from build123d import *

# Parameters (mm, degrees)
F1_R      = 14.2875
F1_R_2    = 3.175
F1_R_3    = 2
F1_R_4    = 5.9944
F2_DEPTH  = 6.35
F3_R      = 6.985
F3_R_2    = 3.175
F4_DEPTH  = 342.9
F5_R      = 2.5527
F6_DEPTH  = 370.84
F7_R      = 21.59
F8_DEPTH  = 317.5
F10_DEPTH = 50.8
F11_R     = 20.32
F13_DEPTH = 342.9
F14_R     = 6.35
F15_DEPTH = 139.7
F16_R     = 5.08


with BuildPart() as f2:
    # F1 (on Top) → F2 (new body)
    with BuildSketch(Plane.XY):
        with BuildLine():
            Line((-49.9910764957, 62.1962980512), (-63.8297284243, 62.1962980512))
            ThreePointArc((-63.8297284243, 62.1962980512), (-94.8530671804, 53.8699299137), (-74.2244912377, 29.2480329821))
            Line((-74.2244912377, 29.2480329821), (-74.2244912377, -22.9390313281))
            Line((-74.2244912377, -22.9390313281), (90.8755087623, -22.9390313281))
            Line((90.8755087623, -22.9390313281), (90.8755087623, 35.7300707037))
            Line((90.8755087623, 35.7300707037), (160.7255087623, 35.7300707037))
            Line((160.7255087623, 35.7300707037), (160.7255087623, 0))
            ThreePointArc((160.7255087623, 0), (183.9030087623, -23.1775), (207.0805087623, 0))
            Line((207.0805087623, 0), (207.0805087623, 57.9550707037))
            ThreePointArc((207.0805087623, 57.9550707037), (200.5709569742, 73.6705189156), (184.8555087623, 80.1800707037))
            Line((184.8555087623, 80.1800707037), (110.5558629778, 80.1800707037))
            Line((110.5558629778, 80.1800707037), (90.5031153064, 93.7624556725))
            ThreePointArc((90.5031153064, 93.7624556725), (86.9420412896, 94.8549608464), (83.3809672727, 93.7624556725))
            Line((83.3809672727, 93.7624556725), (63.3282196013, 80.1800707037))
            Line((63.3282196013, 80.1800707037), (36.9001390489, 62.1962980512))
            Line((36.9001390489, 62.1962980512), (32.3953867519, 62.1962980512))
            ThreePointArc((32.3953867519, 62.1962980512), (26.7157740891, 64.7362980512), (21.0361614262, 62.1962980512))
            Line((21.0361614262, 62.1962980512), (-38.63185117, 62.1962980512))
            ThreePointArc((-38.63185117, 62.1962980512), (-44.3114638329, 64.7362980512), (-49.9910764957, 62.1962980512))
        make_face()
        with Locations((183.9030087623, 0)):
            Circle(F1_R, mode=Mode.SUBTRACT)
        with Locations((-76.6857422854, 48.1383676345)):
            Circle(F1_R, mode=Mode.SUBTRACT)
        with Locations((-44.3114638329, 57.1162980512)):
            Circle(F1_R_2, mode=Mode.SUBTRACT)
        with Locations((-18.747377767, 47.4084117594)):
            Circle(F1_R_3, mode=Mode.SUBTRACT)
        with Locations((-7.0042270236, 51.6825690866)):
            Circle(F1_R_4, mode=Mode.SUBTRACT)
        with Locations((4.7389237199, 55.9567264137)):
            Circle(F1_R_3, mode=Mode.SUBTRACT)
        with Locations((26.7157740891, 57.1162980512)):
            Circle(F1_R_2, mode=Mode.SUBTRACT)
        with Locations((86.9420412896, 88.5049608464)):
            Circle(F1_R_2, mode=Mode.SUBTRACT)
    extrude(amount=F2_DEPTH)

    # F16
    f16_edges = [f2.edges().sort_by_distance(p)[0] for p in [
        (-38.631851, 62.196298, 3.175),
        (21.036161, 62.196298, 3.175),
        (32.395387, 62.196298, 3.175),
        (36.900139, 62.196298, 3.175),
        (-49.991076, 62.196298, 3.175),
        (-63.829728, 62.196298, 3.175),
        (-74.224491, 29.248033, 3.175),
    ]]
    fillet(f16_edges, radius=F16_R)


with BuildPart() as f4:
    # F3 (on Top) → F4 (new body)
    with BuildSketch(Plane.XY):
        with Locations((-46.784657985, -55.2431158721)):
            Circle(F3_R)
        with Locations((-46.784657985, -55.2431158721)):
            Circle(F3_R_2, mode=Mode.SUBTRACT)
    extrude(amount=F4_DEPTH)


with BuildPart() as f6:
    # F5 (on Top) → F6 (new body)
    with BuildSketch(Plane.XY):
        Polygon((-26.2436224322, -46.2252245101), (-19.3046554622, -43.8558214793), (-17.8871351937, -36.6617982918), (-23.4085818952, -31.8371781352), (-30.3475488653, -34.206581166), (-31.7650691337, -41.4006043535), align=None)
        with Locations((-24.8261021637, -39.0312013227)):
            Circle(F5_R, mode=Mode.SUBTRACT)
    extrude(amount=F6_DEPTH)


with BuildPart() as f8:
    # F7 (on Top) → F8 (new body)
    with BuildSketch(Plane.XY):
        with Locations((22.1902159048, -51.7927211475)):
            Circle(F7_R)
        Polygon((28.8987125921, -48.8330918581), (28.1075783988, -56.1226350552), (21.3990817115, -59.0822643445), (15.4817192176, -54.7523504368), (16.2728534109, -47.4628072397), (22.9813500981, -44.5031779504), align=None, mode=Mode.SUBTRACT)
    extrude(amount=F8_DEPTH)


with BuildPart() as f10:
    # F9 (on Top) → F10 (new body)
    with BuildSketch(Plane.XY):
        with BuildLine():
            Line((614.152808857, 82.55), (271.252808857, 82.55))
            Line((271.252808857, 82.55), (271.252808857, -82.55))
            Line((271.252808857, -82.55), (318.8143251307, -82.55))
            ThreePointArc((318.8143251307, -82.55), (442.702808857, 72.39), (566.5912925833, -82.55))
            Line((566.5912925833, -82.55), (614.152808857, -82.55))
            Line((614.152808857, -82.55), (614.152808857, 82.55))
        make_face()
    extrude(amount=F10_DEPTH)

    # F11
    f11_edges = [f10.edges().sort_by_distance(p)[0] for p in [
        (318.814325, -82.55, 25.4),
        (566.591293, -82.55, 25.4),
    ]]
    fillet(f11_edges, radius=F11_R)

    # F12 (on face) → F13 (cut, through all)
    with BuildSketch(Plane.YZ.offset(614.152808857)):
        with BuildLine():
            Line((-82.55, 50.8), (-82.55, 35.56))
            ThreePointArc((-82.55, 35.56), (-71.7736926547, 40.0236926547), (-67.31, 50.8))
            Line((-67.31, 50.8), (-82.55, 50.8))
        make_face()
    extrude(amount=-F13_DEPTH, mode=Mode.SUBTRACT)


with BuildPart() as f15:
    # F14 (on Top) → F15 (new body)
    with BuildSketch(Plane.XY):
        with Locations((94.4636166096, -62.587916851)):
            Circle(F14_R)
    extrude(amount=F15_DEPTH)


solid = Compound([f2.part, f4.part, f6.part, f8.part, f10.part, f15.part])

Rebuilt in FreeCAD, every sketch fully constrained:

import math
import FreeCAD as App
import Part
import Sketcher

V = App.Vector
Q = App.Units.Quantity


def edges_at(feature, points):
    """Names of the edges that pass closest to the given points."""
    edges = feature.Shape.Edges
    near = lambda p: min(range(len(edges)), key=lambda i: edges[i].distToShape(Part.Vertex(*p))[0])
    return sorted({f"Edge{near(p) + 1}" for p in points})


def add_polygon(sketch, points):
    """Adds a closed chain of lines whose ends are joined by coincident constraints."""
    first, n = sketch.GeometryCount, len(points)
    for a, b in zip(points, points[1:] + points[:1]):
        sketch.addGeometry(Part.LineSegment(App.Vector(*a, 0), App.Vector(*b, 0)), False)
    for i in range(n):
        sketch.addConstraint(Sketcher.Constraint("Coincident", first + i, 2, first + (i + 1) % n, 1))

doc = App.newDocument("Part")
params = doc.addObject("Spreadsheet::Sheet", "Params")
for row, (alias, value) in enumerate([
    ("sketch1_radius", "0.3 in"),
    ("sketch1_diameter", "0.25 in"),
    ("sketch1_radius2", "0.75 in"),
    ("sketch1_radius3", "0.25 in"),
    ("sketch1_diameter2", "1.125 in"),
    ("pad1_length", "0.25 in"),
    ("fillet_radius", "0.2 in"),
    ("sketch2_diameter", "0.55 in"),
    ("sketch2_diameter2", "0.25 in"),
    ("pad2_length", "13.5 in"),
    ("sketch3_diameter", "0.201 in"),
    ("pad3_length", "14.6 in"),
    ("sketch4_diameter", "1.7 in"),
    ("pad4_length", "12.5 in"),
    ("sketch5_radius", "5 in"),
    ("sketch5_width", "13.5 in"),
    ("sketch5_height", "6.5 in"),
    ("pad5_length", "2 in"),
    ("fillet2_radius", "0.8 in"),
    ("sketch6_radius", "0.6 in"),
    ("sketch7_diameter", "0.5 in"),
    ("pad6_length", "5.5 in"),
], start=1):
    params.set(f"A{row}", alias)
    params.set(f"B{row}", "=" + value)
    params.setAlias(f"B{row}", alias)

body = doc.addObject("PartDesign::Body", "Body")

# Sketch on XY plane
sketch1 = doc.addObject("Sketcher::SketchObject", "Sketch")
body.addObject(sketch1)
sketch1.AttachmentSupport = (doc.XY_Plane, [""])
sketch1.MapMode = "FlatFace"
sketch1.addGeometry([
    Part.LineSegment(V(-49.991076, 62.196298, 0), V(-63.829728, 62.196298, 0)),  # 0
    Part.ArcOfCircle(Part.Circle(V(-76.685742, 48.138368, 0), V(0, 0, 1), 19.05), math.radians(47.557002), math.radians(277.423339)),  # 1
    Part.LineSegment(V(-74.224491, 29.248033, 0), V(-74.224491, -22.939031, 0)),  # 2
    Part.LineSegment(V(-74.224491, -22.939031, 0), V(90.875509, -22.939031, 0)),  # 3
    Part.LineSegment(V(90.875509, -22.939031, 0), V(90.875509, 35.730071, 0)),  # 4
    Part.LineSegment(V(90.875509, 35.730071, 0), V(160.725509, 35.730071, 0)),  # 5
    Part.LineSegment(V(160.725509, 35.730071, 0), V(160.725509, 0, 0)),  # 6
    Part.ArcOfCircle(Part.Circle(V(183.903009, 0, 0), V(0, 0, 1), 23.1775), math.radians(180), math.radians(360)),  # 7
    Part.LineSegment(V(207.080509, 0, 0), V(207.080509, 57.955071, 0)),  # 8
    Part.ArcOfCircle(Part.Circle(V(184.855509, 57.955071, 0), V(0, 0, 1), 22.225), math.radians(0), math.radians(90)),  # 9
    Part.LineSegment(V(184.855509, 80.180071, 0), V(110.555863, 80.180071, 0)),  # 10
    Part.LineSegment(V(110.555863, 80.180071, 0), V(90.503115, 93.762456, 0)),  # 11
    Part.ArcOfCircle(Part.Circle(V(86.942041, 88.504961, 0), V(0, 0, 1), 6.35), math.radians(55.888924), math.radians(124.111076)),  # 12
    Part.LineSegment(V(83.380967, 93.762456, 0), V(63.32822, 80.180071, 0)),  # 13
    Part.LineSegment(V(63.32822, 80.180071, 0), V(36.900139, 62.196298, 0)),  # 14
    Part.LineSegment(V(36.900139, 62.196298, 0), V(32.395387, 62.196298, 0)),  # 15
    Part.ArcOfCircle(Part.Circle(V(26.715774, 57.116298, 0), V(0, 0, 1), 7.62), math.radians(41.810315), math.radians(138.189685)),  # 16
    Part.LineSegment(V(21.036161, 62.196298, 0), V(-38.631851, 62.196298, 0)),  # 17
    Part.ArcOfCircle(Part.Circle(V(-44.311464, 57.116298, 0), V(0, 0, 1), 7.62), math.radians(41.810315), math.radians(138.189685)),  # 18
    Part.Circle(V(183.903009, 0, 0), V(0, 0, 1), 14.2875),  # 19
    Part.Circle(V(-76.685742, 48.138368, 0), V(0, 0, 1), 14.2875),  # 20
    Part.Circle(V(-18.747378, 47.408412, 0), V(0, 0, 1), 2),  # 21
    Part.Circle(V(-44.311464, 57.116298, 0), V(0, 0, 1), 3.175),  # 22
    Part.Circle(V(-7.004227, 51.682569, 0), V(0, 0, 1), 5.9944),  # 23
    Part.Circle(V(4.738924, 55.956726, 0), V(0, 0, 1), 2),  # 24
    Part.Circle(V(26.715774, 57.116298, 0), V(0, 0, 1), 3.175),  # 25
    Part.Circle(V(86.942041, 88.504961, 0), V(0, 0, 1), 3.175),  # 26
], False)
sketch1.addConstraint([
    Sketcher.Constraint("Coincident", 0, 2, 1, 1),
    Sketcher.Constraint("Coincident", 1, 2, 2, 1),
    Sketcher.Constraint("Coincident", 2, 2, 3, 1),
    Sketcher.Constraint("Coincident", 3, 2, 4, 1),
    Sketcher.Constraint("Coincident", 4, 2, 5, 1),
    Sketcher.Constraint("Coincident", 5, 2, 6, 1),
    Sketcher.Constraint("Tangent", 6, 2, 7, 1),
    Sketcher.Constraint("Tangent", 7, 2, 8, 1),
    Sketcher.Constraint("Tangent", 8, 2, 9, 1),
    Sketcher.Constraint("Tangent", 9, 2, 10, 1),
    Sketcher.Constraint("Coincident", 10, 2, 11, 1),
    Sketcher.Constraint("Tangent", 11, 2, 12, 1),
    Sketcher.Constraint("Tangent", 12, 2, 13, 1),
    Sketcher.Constraint("Coincident", 13, 2, 14, 1),
    Sketcher.Constraint("Coincident", 14, 2, 15, 1),
    Sketcher.Constraint("Coincident", 15, 2, 16, 1),
    Sketcher.Constraint("Coincident", 16, 2, 17, 1),
    Sketcher.Constraint("Coincident", 17, 2, 18, 1),
    Sketcher.Constraint("Coincident", 18, 2, 0, 1),
    Sketcher.Constraint("Horizontal", 0),
    Sketcher.Constraint("Vertical", 2),
    Sketcher.Constraint("Horizontal", 3),
    Sketcher.Constraint("Vertical", 4),
    Sketcher.Constraint("Horizontal", 5),
    Sketcher.Constraint("Vertical", 6),
    Sketcher.Constraint("Vertical", 8),
    Sketcher.Constraint("Horizontal", 10),
    Sketcher.Constraint("Horizontal", 15),
    Sketcher.Constraint("Horizontal", 17),
    Sketcher.Constraint("Coincident", 19, 3, 7, 3),
    Sketcher.Constraint("Coincident", 20, 3, 1, 3),
    Sketcher.Constraint("Coincident", 22, 3, 18, 3),
    Sketcher.Constraint("Coincident", 25, 3, 16, 3),
    Sketcher.Constraint("Coincident", 26, 3, 12, 3),
    Sketcher.Constraint("Equal", 16, 18),
    Sketcher.Constraint("Equal", 19, 20),
    Sketcher.Constraint("Equal", 21, 24),
    Sketcher.Constraint("Equal", 22, 25),
    Sketcher.Constraint("Equal", 25, 26),
    Sketcher.Constraint("PointOnObject", 7, 3, -1),
    Sketcher.Constraint("Horizontal", 16, 3, 18, 3),
    Sketcher.Constraint("Horizontal", 11, 2, 12, 2),
    Sketcher.Constraint("Horizontal", 10, 2, 13, 2),
    Sketcher.Constraint("Horizontal", 0, 2, 14, 2),
    Sketcher.Constraint("Horizontal", 15, 2, 16, 2),
    Sketcher.Constraint("Radius", 16, Q("0.3 in")),
    Sketcher.Constraint("Diameter", 22, Q("0.25 in")),
    Sketcher.Constraint("Radius", 1, Q("0.75 in")),
    Sketcher.Constraint("Radius", 12, Q("0.25 in")),
    Sketcher.Constraint("Diameter", 19, Q("1.125 in")),
    Sketcher.Constraint("Diameter", 23, Q("0.472 in")),
    Sketcher.Constraint("DistanceX", 3, 1, 3, 2, Q("6.5 in")),
    Sketcher.Constraint("Radius", 9, Q("0.875 in")),
    Sketcher.Constraint("DistanceX", 5, 1, 5, 2, Q("2.75 in")),
    Sketcher.Constraint("Radius", 7, Q("0.9125 in")),
    Sketcher.Constraint("DistanceY", 18, 3, 0, 2, Q("0.2 in")),
    Sketcher.Constraint("Diameter", 21, 4.0),
    Sketcher.Constraint("DistanceY", 5, 2, 9, 2, Q("1.75 in")),
    Sketcher.Constraint("Distance", 11, 24.2197),
    Sketcher.Constraint("DistanceX", 0, 2, 0, 1, 13.838652),
    Sketcher.Constraint("DistanceY", 6, 2, 6, 1, 35.730071),
    Sketcher.Constraint("DistanceY", -1, 1, 16, 3, 57.116298),
    Sketcher.Constraint("DistanceX", 23, 3, 16, 3, 33.720001),
    Sketcher.Constraint("DistanceY", 1, 3, 23, 3, 3.544201),
    Sketcher.Constraint("DistanceX", 21, 3, 24, 3, 23.486301),
    Sketcher.Constraint("DistanceY", 2, 2, 1, 3, 71.077399),
    Sketcher.Constraint("DistanceX", 10, 2, 10, 1, 74.299646),
    Sketcher.Constraint("DistanceX", 15, 2, 15, 1, 4.504752),
    Sketcher.Constraint("DistanceX", 17, 2, 17, 1, 59.668013),
    Sketcher.Constraint("DistanceY", 2, 2, 2, 1, 52.187064),
    Sketcher.Constraint("DistanceY", 4, 1, 4, 2, 58.669102),
    Sketcher.Constraint("DistanceX", -1, 1, 7, 3, 183.903009),
    Sketcher.Constraint("DistanceX", -1, 1, 12, 3, 86.942041),
    Sketcher.Constraint("DistanceY", -1, 1, 21, 3, 47.408412),
    Sketcher.Constraint("DistanceX", 21, 3, 16, 3, 45.463152),
    Sketcher.Constraint("DistanceY", 24, 3, 16, 3, 1.159572),
])
sketch1.setExpression("Constraints[45]", "Params.sketch1_radius")
sketch1.setExpression("Constraints[46]", "Params.sketch1_diameter")
sketch1.setExpression("Constraints[47]", "Params.sketch1_radius2")
sketch1.setExpression("Constraints[48]", "Params.sketch1_radius3")
sketch1.setExpression("Constraints[49]", "Params.sketch1_diameter2")
pad1 = doc.addObject("PartDesign::Pad", "Pad")
body.addObject(pad1)
pad1.Profile = sketch1
pad1.setExpression("Length", "Params.pad1_length")
doc.recompute()

fillet = doc.addObject("PartDesign::Fillet", "Fillet")
body.addObject(fillet)
fillet.Base = (pad1, edges_at(pad1, [
    (-38.632, 62.196, 3.175),
    (21.036, 62.196, 3.175),
    (32.395, 62.196, 3.175),
    (36.9, 62.196, 3.175),
    (-49.991, 62.196, 3.175),
    (-63.83, 62.196, 3.175),
    (-74.224, 29.248, 3.175),
]))
fillet.setExpression("Radius", "Params.fillet_radius")
body2 = doc.addObject("PartDesign::Body", "Body001")

# Sketch on XY plane
sketch2 = doc.addObject("Sketcher::SketchObject", "Sketch001")
body2.addObject(sketch2)
sketch2.AttachmentSupport = (doc.getObject("XY_Plane001"), [""])
sketch2.MapMode = "FlatFace"
sketch2.addGeometry([
    Part.Circle(V(-46.784658, -55.243116, 0), V(0, 0, 1), 6.985),
    Part.Circle(V(-46.784658, -55.243116, 0), V(0, 0, 1), 3.175),
], False)
sketch2.addConstraint([
    Sketcher.Constraint("Coincident", 1, 3, 0, 3),
    Sketcher.Constraint("Diameter", 0, Q("0.55 in")),
    Sketcher.Constraint("Diameter", 1, Q("0.25 in")),
    Sketcher.Constraint("DistanceX", 0, 3, -1, 1, 46.784658),
    Sketcher.Constraint("DistanceY", 0, 3, -1, 1, 55.243116),
])
sketch2.setExpression("Constraints[1]", "Params.sketch2_diameter")
sketch2.setExpression("Constraints[2]", "Params.sketch2_diameter2")
pad2 = doc.addObject("PartDesign::Pad", "Pad001")
body2.addObject(pad2)
pad2.Profile = sketch2
pad2.setExpression("Length", "Params.pad2_length")
body3 = doc.addObject("PartDesign::Body", "Body002")

# Sketch on XY plane
sketch3 = doc.addObject("Sketcher::SketchObject", "Sketch002")
body3.addObject(sketch3)
sketch3.AttachmentSupport = (doc.getObject("XY_Plane002"), [""])
sketch3.MapMode = "FlatFace"
add_polygon(sketch3, [(-26.243622, -46.225225), (-19.304655, -43.855821), (-17.887135, -36.661798), (-23.408582, -31.837178), (-30.347549, -34.206581), (-31.765069, -41.400604)])  # lines 0-5
sketch3.addGeometry(Part.Circle(V(-24.826102, -39.031201, 0), V(0, 0, 1), 2.5527), False)  # 6
sketch3.addConstraint([
    Sketcher.Constraint("Parallel", 0, 3),
    Sketcher.Constraint("Parallel", 1, 4),
    Sketcher.Constraint("Parallel", 2, 5),
    Sketcher.Constraint("Equal", 0, 1),
    Sketcher.Constraint("Equal", 1, 2),
    Sketcher.Constraint("Equal", 2, 3),
    Sketcher.Constraint("Diameter", 6, Q("0.201 in")),
    Sketcher.Constraint("DistanceY", 6, 3, -1, 1, 39.031201),
    Sketcher.Constraint("DistanceY", 1, 2, -1, 1, 36.661798),
    Sketcher.Constraint("Distance", 0, 7.332348),
    Sketcher.Constraint("DistanceY", 0, 2, -1, 1, 43.855821),
    Sketcher.Constraint("DistanceX", 2, 2, -1, 1, 23.408582),
    Sketcher.Constraint("DistanceY", 2, 2, -1, 1, 31.837178),
    Sketcher.Constraint("DistanceX", 3, 2, -1, 1, 30.347549),
    Sketcher.Constraint("DistanceX", 6, 3, 2, 2, 1.41752),
])
sketch3.setExpression("Constraints[12]", "Params.sketch3_diameter")
pad3 = doc.addObject("PartDesign::Pad", "Pad002")
body3.addObject(pad3)
pad3.Profile = sketch3
pad3.setExpression("Length", "Params.pad3_length")
body4 = doc.addObject("PartDesign::Body", "Body003")

# Sketch on XY plane
sketch4 = doc.addObject("Sketcher::SketchObject", "Sketch003")
body4.addObject(sketch4)
sketch4.AttachmentSupport = (doc.getObject("XY_Plane003"), [""])
sketch4.MapMode = "FlatFace"
sketch4.addGeometry(Part.Circle(V(22.190216, -51.792721, 0), V(0, 0, 1), 21.59), False)  # 0
add_polygon(sketch4, [(22.98135, -44.503178), (28.898713, -48.833092), (28.107578, -56.122635), (21.399082, -59.082264), (15.481719, -54.75235), (16.272853, -47.462807)])  # lines 1-6
sketch4.addConstraint([
    Sketcher.Constraint("Parallel", 1, 4),
    Sketcher.Constraint("Parallel", 2, 5),
    Sketcher.Constraint("Parallel", 3, 6),
    Sketcher.Constraint("Equal", 1, 2),
    Sketcher.Constraint("Equal", 2, 3),
    Sketcher.Constraint("Equal", 3, 4),
    Sketcher.Constraint("Diameter", 0, Q("1.7 in")),
    Sketcher.Constraint("Distance", 1, 7.332348),
    Sketcher.Constraint("DistanceY", 0, 3, -1, 1, 51.792721),
    Sketcher.Constraint("DistanceY", 1, 2, -1, 1, 48.833092),
    Sketcher.Constraint("DistanceX", -1, 1, 2, 2, 28.107578),
    Sketcher.Constraint("DistanceX", -1, 1, 3, 2, 21.399082),
    Sketcher.Constraint("DistanceX", -1, 1, 4, 2, 15.481719),
    Sketcher.Constraint("DistanceY", 4, 2, -1, 1, 54.75235),
    Sketcher.Constraint("DistanceX", -1, 1, 0, 3, 22.190216),
])
sketch4.setExpression("Constraints[12]", "Params.sketch4_diameter")
pad4 = doc.addObject("PartDesign::Pad", "Pad003")
body4.addObject(pad4)
pad4.Profile = sketch4
pad4.setExpression("Length", "Params.pad4_length")
body5 = doc.addObject("PartDesign::Body", "Body004")

# Sketch on XY plane
sketch5 = doc.addObject("Sketcher::SketchObject", "Sketch004")
body5.addObject(sketch5)
sketch5.AttachmentSupport = (doc.getObject("XY_Plane004"), [""])
sketch5.MapMode = "FlatFace"
sketch5.addGeometry([
    Part.LineSegment(V(614.152809, 82.55, 0), V(271.252809, 82.55, 0)),  # 0
    Part.LineSegment(V(271.252809, 82.55, 0), V(271.252809, -82.55, 0)),  # 1
    Part.LineSegment(V(271.252809, -82.55, 0), V(318.814325, -82.55, 0)),  # 2
    Part.ArcOfCircle(Part.Circle(V(442.702809, -54.61, 0), V(0, 0, 1), 127), math.radians(-12.709033), math.radians(192.709033)),  # 3
    Part.LineSegment(V(566.591293, -82.55, 0), V(614.152809, -82.55, 0)),  # 4
    Part.LineSegment(V(614.152809, -82.55, 0), V(614.152809, 82.55, 0)),  # 5
], False)
sketch5.addConstraint([
    Sketcher.Constraint("Coincident", 0, 2, 1, 1),
    Sketcher.Constraint("Coincident", 1, 2, 2, 1),
    Sketcher.Constraint("Coincident", 2, 2, 3, 2),
    Sketcher.Constraint("Coincident", 3, 1, 4, 1),
    Sketcher.Constraint("Coincident", 4, 2, 5, 1),
    Sketcher.Constraint("Coincident", 5, 2, 0, 1),
    Sketcher.Constraint("Horizontal", 0),
    Sketcher.Constraint("Vertical", 1),
    Sketcher.Constraint("Horizontal", 2),
    Sketcher.Constraint("Horizontal", 4),
    Sketcher.Constraint("Vertical", 5),
    Sketcher.Constraint("Horizontal", 2, 2, 3, 1),
    Sketcher.Constraint("Equal", 2, 4),
    Sketcher.Constraint("Radius", 3, Q("5 in")),
    Sketcher.Constraint("DistanceX", 0, 2, 0, 1, Q("13.5 in")),
    Sketcher.Constraint("DistanceY", 1, 2, 1, 1, Q("6.5 in")),
    Sketcher.Constraint("DistanceY", 3, 3, 0, 2, Q("5.4 in")),
    Sketcher.Constraint("DistanceY", 3, 3, -1, 1, Q("2.15 in")),
    Sketcher.Constraint("DistanceX", -1, 1, 3, 3, 442.702809),
])
sketch5.setExpression("Constraints[13]", "Params.sketch5_radius")
sketch5.setExpression("Constraints[14]", "Params.sketch5_width")
sketch5.setExpression("Constraints[15]", "Params.sketch5_height")
pad5 = doc.addObject("PartDesign::Pad", "Pad004")
body5.addObject(pad5)
pad5.Profile = sketch5
pad5.setExpression("Length", "Params.pad5_length")
doc.recompute()

fillet2 = doc.addObject("PartDesign::Fillet", "Fillet001")
body5.addObject(fillet2)
fillet2.Base = (pad5, edges_at(pad5, [(318.814, -82.55, 25.4), (566.591, -82.55, 25.4)]))
fillet2.setExpression("Radius", "Params.fillet2_radius")

# Sketch on YZ plane
sketch6 = doc.addObject("Sketcher::SketchObject", "Sketch005")
body5.addObject(sketch6)
sketch6.AttachmentSupport = (doc.getObject("YZ_Plane004"), [""])
sketch6.MapMode = "FlatFace"
sketch6.AttachmentOffset = App.Placement(V(0, 0, 614.152809), App.Rotation())
sketch6.addGeometry([
    Part.LineSegment(V(-82.55, 50.8, 0), V(-82.55, 35.56, 0)),
    Part.ArcOfCircle(Part.Circle(V(-82.55, 50.8, 0), V(0, 0, 1), 15.24), math.radians(-90), math.radians(0)),
    Part.LineSegment(V(-67.31, 50.8, 0), V(-82.55, 50.8, 0)),
], False)
sketch6.addConstraint([
    Sketcher.Constraint("Coincident", 0, 2, 1, 1),
    Sketcher.Constraint("Coincident", 1, 2, 2, 1),
    Sketcher.Constraint("Coincident", 2, 2, 0, 1),
    Sketcher.Constraint("Vertical", 0),
    Sketcher.Constraint("Horizontal", 2),
    Sketcher.Constraint("Coincident", 2, 2, 1, 3),
    Sketcher.Constraint("Radius", 1, Q("0.6 in")),
    Sketcher.Constraint("DistanceY", -1, 1, 1, 3, Q("2 in")),
    Sketcher.Constraint("DistanceX", 1, 3, -1, 1, Q("3.25 in")),
])
sketch6.setExpression("Constraints[6]", "Params.sketch6_radius")
pocket1 = doc.addObject("PartDesign::Pocket", "Pocket")
body5.addObject(pocket1)
pocket1.Profile = sketch6
pocket1.Type = "ThroughAll"
body6 = doc.addObject("PartDesign::Body", "Body005")

# Sketch on XY plane
sketch7 = doc.addObject("Sketcher::SketchObject", "Sketch006")
body6.addObject(sketch7)
sketch7.AttachmentSupport = (doc.getObject("XY_Plane005"), [""])
sketch7.MapMode = "FlatFace"
sketch7.addGeometry(Part.Circle(V(94.463617, -62.587917, 0), V(0, 0, 1), 6.35), False)
sketch7.addConstraint([
    Sketcher.Constraint("Diameter", 0, Q("0.5 in")),
    Sketcher.Constraint("DistanceX", -1, 1, 0, 3, 94.463617),
    Sketcher.Constraint("DistanceY", 0, 3, -1, 1, 62.587917),
])
sketch7.setExpression("Constraints[0]", "Params.sketch7_diameter")
pad6 = doc.addObject("PartDesign::Pad", "Pad005")
body6.addObject(pad6)
pad6.Profile = sketch7
pad6.setExpression("Length", "Params.pad6_length")

doc.recompute()
